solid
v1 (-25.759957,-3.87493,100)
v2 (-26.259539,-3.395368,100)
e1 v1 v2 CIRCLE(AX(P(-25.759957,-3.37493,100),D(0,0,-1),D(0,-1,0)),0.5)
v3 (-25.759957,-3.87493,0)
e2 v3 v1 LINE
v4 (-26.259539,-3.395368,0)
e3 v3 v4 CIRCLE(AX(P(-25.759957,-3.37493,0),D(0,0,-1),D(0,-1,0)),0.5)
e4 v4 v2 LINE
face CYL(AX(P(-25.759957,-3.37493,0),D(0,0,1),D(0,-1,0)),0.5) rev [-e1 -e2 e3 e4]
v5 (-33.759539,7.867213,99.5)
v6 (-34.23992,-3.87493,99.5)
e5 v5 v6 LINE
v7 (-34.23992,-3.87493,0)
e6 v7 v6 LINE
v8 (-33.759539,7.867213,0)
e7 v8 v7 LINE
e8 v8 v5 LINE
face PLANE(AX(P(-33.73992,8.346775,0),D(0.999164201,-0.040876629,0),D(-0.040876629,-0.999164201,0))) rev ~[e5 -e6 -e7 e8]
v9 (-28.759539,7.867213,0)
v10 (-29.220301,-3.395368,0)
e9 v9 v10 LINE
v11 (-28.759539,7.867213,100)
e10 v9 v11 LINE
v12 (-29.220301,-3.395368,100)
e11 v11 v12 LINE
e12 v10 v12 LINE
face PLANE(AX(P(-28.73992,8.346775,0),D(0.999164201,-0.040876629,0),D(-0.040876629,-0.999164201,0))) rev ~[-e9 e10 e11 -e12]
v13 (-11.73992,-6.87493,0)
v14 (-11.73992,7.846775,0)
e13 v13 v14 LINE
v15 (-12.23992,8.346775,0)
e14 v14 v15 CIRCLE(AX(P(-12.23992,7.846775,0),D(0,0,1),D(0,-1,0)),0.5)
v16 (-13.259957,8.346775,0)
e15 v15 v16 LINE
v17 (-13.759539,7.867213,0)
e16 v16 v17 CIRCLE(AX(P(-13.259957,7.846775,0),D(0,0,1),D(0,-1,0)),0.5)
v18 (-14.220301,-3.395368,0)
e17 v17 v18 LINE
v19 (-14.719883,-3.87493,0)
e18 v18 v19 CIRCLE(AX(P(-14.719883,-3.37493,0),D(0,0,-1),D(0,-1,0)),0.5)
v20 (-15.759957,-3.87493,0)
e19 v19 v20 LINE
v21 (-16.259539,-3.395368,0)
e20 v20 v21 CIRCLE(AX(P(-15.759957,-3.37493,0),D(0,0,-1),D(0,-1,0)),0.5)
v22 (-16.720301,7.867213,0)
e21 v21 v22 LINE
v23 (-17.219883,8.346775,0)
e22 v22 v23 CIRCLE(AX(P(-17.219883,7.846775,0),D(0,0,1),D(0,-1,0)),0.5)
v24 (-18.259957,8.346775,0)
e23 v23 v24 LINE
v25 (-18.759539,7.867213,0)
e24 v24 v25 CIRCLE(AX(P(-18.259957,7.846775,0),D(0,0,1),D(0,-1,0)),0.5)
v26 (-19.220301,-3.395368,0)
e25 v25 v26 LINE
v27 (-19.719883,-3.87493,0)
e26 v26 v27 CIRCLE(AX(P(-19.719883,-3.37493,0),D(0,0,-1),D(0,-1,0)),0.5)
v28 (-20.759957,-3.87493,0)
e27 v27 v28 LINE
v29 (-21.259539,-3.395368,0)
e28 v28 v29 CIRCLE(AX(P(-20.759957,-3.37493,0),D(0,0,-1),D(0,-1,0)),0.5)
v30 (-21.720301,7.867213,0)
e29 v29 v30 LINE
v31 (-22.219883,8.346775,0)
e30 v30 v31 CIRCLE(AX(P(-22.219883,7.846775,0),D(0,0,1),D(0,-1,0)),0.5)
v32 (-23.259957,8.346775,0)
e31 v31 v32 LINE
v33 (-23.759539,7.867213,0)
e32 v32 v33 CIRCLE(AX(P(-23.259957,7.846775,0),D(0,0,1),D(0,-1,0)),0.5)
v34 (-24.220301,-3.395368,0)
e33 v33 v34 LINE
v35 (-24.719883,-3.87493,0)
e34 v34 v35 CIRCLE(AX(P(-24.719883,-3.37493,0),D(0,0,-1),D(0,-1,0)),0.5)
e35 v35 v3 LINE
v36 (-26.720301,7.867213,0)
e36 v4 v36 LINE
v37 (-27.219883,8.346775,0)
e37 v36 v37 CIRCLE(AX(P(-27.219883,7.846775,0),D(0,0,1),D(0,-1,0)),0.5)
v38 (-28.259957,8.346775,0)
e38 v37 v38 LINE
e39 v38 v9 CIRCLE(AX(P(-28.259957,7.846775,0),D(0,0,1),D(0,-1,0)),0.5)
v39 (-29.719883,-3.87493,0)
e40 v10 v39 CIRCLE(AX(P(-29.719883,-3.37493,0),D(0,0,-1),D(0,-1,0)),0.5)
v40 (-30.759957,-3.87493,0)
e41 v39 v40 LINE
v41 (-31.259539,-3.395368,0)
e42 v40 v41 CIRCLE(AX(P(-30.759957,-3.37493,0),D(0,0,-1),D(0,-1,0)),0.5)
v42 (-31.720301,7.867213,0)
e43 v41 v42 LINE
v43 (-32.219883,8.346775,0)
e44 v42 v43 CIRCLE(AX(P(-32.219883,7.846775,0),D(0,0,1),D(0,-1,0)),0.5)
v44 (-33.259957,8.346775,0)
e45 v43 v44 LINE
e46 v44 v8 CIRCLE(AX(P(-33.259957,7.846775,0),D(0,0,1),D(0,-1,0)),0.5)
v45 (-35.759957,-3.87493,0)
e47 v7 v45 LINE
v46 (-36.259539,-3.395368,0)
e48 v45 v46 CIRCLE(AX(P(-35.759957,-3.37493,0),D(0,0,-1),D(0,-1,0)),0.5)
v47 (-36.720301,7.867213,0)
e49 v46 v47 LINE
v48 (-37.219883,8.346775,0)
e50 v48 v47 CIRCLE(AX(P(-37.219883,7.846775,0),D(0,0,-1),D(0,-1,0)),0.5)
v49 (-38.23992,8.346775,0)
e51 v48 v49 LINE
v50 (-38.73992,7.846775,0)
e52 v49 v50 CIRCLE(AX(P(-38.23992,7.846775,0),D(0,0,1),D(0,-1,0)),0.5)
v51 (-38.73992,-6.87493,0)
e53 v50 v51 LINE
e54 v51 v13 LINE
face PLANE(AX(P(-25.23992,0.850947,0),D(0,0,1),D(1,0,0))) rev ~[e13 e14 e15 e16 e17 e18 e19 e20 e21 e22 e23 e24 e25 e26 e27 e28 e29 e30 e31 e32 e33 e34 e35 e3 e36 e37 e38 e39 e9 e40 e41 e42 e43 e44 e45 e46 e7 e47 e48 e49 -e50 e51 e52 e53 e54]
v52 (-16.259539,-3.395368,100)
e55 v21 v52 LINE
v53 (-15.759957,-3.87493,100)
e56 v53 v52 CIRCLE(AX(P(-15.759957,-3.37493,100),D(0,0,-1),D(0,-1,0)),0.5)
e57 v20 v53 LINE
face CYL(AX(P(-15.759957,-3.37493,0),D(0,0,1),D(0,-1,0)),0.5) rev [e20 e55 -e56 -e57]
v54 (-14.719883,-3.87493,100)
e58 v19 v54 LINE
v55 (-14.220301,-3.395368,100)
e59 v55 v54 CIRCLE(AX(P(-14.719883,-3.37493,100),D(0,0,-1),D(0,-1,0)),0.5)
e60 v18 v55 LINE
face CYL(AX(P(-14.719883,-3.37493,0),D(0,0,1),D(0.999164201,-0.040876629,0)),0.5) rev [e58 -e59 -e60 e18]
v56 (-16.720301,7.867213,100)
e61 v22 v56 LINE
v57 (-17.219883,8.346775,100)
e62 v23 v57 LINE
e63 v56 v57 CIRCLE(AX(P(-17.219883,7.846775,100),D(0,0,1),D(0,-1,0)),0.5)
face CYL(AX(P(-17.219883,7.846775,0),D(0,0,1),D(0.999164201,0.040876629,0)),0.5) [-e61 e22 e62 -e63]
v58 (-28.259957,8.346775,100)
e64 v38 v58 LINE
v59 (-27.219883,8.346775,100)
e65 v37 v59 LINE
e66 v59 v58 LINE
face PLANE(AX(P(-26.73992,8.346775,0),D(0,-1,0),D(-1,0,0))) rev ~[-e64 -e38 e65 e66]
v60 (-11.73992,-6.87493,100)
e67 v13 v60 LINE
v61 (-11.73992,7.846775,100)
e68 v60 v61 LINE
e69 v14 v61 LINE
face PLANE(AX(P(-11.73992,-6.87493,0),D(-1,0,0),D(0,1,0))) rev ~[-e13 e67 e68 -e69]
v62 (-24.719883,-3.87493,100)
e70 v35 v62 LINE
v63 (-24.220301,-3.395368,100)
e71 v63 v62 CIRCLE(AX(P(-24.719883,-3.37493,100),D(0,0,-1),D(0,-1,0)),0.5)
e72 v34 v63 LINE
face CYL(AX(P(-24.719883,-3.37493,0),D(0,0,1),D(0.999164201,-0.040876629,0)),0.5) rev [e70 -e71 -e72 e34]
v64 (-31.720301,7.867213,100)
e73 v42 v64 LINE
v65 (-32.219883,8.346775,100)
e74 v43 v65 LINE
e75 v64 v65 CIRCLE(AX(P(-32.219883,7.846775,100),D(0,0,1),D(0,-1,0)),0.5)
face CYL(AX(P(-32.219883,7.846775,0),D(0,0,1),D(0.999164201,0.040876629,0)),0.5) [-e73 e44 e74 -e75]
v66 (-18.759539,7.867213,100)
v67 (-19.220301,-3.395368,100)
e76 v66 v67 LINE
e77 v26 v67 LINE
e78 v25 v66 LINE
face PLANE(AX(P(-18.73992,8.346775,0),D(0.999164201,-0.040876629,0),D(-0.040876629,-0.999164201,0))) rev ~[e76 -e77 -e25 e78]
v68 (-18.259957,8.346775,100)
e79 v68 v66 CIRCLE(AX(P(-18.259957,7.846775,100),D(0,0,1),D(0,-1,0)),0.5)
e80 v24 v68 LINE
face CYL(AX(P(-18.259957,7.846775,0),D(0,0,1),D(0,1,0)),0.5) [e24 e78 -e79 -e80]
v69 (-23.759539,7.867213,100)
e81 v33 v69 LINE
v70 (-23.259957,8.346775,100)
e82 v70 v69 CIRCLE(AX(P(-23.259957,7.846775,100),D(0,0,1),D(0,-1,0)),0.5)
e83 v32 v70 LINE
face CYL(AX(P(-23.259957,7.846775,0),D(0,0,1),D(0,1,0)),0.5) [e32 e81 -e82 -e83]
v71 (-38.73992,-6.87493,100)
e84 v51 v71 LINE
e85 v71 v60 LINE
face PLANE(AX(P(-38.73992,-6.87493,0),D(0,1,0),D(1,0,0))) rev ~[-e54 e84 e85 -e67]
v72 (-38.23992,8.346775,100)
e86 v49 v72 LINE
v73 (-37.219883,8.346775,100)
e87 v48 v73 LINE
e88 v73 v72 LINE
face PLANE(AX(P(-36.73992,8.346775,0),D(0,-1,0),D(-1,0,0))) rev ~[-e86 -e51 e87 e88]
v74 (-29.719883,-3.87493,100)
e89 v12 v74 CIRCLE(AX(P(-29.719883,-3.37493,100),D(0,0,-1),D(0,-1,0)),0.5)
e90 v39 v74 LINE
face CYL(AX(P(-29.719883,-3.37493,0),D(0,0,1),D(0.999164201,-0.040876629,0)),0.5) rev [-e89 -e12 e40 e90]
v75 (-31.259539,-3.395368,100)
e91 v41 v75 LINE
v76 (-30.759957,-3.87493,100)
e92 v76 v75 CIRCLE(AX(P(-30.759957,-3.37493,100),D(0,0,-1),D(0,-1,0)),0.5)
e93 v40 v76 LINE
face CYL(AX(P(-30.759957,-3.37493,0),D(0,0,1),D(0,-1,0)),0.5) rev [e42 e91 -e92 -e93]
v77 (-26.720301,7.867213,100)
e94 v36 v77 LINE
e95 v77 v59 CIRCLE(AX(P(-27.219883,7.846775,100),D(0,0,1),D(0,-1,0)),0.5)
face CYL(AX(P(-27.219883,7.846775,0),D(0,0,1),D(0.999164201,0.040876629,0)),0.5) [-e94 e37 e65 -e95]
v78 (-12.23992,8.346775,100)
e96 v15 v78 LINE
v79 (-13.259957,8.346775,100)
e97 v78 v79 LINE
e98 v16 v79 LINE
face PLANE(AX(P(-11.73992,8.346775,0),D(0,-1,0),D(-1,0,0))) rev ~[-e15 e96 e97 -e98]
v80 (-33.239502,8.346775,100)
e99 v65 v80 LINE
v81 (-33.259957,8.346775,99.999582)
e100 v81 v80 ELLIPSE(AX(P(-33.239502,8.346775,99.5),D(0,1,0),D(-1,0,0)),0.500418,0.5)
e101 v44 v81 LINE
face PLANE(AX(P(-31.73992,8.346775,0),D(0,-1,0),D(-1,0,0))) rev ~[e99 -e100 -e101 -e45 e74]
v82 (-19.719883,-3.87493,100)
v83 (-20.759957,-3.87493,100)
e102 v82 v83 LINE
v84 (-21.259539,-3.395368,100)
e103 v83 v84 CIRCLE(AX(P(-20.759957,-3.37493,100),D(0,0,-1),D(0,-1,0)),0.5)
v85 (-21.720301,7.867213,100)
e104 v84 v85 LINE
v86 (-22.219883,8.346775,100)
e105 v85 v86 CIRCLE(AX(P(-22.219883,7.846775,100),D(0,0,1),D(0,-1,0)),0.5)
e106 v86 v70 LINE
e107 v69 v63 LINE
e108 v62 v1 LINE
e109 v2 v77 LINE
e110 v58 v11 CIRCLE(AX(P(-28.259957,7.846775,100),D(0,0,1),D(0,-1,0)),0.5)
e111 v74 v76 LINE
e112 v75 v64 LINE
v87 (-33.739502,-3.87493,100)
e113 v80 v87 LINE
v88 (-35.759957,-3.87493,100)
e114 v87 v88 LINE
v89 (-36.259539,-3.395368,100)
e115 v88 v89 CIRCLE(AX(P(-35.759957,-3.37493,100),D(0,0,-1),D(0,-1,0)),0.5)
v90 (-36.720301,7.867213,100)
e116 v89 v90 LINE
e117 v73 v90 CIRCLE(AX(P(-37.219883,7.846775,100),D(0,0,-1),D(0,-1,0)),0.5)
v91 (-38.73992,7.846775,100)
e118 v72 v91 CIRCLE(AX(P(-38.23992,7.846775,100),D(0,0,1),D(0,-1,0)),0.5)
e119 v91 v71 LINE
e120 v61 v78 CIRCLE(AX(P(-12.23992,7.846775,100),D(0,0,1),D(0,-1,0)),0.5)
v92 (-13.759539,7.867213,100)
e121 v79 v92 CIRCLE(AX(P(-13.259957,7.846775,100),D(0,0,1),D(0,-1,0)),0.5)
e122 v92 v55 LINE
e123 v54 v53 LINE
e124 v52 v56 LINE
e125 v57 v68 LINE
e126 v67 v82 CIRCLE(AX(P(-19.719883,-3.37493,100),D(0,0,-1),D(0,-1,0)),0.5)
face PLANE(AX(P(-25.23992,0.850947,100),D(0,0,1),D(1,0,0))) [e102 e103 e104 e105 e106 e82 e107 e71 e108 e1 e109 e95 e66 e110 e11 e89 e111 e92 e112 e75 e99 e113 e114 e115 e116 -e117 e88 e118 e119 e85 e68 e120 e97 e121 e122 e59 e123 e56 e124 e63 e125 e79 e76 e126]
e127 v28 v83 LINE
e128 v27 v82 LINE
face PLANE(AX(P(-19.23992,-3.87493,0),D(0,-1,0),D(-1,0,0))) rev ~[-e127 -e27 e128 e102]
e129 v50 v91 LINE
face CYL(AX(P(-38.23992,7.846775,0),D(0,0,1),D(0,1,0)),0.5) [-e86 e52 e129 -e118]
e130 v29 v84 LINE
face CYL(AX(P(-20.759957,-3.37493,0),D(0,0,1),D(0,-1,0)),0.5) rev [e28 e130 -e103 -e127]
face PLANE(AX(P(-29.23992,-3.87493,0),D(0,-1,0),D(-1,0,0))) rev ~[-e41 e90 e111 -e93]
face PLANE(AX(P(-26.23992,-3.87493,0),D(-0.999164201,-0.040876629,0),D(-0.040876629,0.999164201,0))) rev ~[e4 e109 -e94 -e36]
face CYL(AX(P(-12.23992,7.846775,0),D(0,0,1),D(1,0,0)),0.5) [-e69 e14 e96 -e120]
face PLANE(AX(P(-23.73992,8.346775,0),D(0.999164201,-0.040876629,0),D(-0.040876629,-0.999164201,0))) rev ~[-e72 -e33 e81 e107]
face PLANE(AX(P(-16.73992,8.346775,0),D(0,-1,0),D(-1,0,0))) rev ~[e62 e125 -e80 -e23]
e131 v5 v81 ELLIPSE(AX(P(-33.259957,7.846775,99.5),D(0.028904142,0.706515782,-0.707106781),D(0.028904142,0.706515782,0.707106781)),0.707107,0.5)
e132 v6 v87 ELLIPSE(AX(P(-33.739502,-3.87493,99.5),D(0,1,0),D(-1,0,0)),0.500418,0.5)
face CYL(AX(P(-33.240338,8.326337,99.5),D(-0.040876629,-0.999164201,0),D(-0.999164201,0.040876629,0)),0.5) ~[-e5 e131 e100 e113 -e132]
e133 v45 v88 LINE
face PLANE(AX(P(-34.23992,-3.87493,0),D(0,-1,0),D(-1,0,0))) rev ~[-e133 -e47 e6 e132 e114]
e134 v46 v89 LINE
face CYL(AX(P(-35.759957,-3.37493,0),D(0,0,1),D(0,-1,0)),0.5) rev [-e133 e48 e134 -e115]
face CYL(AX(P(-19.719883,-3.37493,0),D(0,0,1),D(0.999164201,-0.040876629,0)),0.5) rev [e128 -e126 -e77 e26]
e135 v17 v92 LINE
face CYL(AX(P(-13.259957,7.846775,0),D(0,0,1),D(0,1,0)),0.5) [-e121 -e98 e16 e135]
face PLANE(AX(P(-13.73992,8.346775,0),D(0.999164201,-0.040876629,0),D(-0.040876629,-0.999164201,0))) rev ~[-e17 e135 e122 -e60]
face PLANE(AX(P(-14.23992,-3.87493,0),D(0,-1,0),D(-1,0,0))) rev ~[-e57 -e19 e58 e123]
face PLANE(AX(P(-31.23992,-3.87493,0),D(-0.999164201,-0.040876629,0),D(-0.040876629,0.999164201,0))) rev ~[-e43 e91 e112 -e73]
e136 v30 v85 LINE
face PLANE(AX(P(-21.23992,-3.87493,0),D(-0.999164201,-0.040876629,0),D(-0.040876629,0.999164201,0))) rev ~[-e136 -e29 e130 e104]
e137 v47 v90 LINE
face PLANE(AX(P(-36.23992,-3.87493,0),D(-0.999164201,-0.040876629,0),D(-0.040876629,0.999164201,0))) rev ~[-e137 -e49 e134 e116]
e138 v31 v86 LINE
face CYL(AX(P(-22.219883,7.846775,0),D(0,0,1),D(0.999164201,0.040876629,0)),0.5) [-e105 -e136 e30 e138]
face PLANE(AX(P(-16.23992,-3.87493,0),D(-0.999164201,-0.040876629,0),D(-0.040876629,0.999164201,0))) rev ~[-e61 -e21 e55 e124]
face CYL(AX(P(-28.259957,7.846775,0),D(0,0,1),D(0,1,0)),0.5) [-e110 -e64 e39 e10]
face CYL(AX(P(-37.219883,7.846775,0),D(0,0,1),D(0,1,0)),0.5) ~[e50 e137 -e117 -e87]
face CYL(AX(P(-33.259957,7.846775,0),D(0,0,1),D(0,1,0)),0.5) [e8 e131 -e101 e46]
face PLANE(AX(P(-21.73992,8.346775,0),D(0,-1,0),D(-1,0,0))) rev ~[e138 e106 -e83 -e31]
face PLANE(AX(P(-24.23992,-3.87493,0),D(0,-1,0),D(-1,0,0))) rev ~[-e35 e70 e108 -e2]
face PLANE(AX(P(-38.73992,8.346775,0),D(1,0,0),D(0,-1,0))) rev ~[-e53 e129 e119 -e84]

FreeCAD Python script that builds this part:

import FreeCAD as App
import Part
import Sketcher
Q = App.Units.Quantity


def edges_at(feature, points):
    """Names of the edges that pass closest to the given points."""
    edges = feature.Shape.Edges
    near = lambda p: min(range(len(edges)), key=lambda i: edges[i].distToShape(Part.Vertex(*p))[0])
    return sorted({f"Edge{near(p) + 1}" for p in points})

doc = App.newDocument("Part")
body = doc.addObject("PartDesign::Body", "Body")

# Sketch on XY plane
sketch1 = body.newObject("Sketcher::SketchObject", "Sketch")
sketch1.AttachmentSupport = (doc.getObject("XY_Plane"), [""])
sketch1.MapMode = "FlatFace"
sketch1.addGeometry([
    Part.LineSegment(App.Vector(-36.73992, 8.346775, 0), App.Vector(-38.73992, 8.346775, 0)),  # 0
    Part.LineSegment(App.Vector(-38.73992, 8.346775, 0), App.Vector(-38.73992, -6.87493, 0)),  # 1
    Part.LineSegment(App.Vector(-38.73992, -6.87493, 0), App.Vector(-11.73992, -6.87493, 0)),  # 2
    Part.LineSegment(App.Vector(-11.73992, -6.87493, 0), App.Vector(-11.73992, 8.346775, 0)),  # 3
    Part.LineSegment(App.Vector(-11.73992, 8.346775, 0), App.Vector(-13.73992, 8.346775, 0)),  # 4
    Part.LineSegment(App.Vector(-13.73992, 8.346775, 0), App.Vector(-14.23992, -3.87493, 0)),  # 5
    Part.LineSegment(App.Vector(-14.23992, -3.87493, 0), App.Vector(-16.23992, -3.87493, 0)),  # 6
    Part.LineSegment(App.Vector(-16.23992, -3.87493, 0), App.Vector(-16.73992, 8.346775, 0)),  # 7
    Part.LineSegment(App.Vector(-16.73992, 8.346775, 0), App.Vector(-18.73992, 8.346775, 0)),  # 8
    Part.LineSegment(App.Vector(-18.73992, 8.346775, 0), App.Vector(-19.23992, -3.87493, 0)),  # 9
    Part.LineSegment(App.Vector(-19.23992, -3.87493, 0), App.Vector(-21.23992, -3.87493, 0)),  # 10
    Part.LineSegment(App.Vector(-21.23992, -3.87493, 0), App.Vector(-21.73992, 8.346775, 0)),  # 11
    Part.LineSegment(App.Vector(-21.73992, 8.346775, 0), App.Vector(-23.73992, 8.346775, 0)),  # 12
    Part.LineSegment(App.Vector(-23.73992, 8.346775, 0), App.Vector(-24.23992, -3.87493, 0)),  # 13
    Part.LineSegment(App.Vector(-24.23992, -3.87493, 0), App.Vector(-26.23992, -3.87493, 0)),  # 14
    Part.LineSegment(App.Vector(-26.23992, -3.87493, 0), App.Vector(-26.73992, 8.346775, 0)),  # 15
    Part.LineSegment(App.Vector(-26.73992, 8.346775, 0), App.Vector(-28.73992, 8.346775, 0)),  # 16
    Part.LineSegment(App.Vector(-28.73992, 8.346775, 0), App.Vector(-29.23992, -3.87493, 0)),  # 17
    Part.LineSegment(App.Vector(-29.23992, -3.87493, 0), App.Vector(-31.23992, -3.87493, 0)),  # 18
    Part.LineSegment(App.Vector(-31.23992, -3.87493, 0), App.Vector(-31.73992, 8.346775, 0)),  # 19
    Part.LineSegment(App.Vector(-31.73992, 8.346775, 0), App.Vector(-33.73992, 8.346775, 0)),  # 20
    Part.LineSegment(App.Vector(-33.73992, 8.346775, 0), App.Vector(-34.23992, -3.87493, 0)),  # 21
    Part.LineSegment(App.Vector(-34.23992, -3.87493, 0), App.Vector(-36.23992, -3.87493, 0)),  # 22
    Part.LineSegment(App.Vector(-36.23992, -3.87493, 0), App.Vector(-36.73992, 8.346775, 0)),  # 23
], False)
sketch1.addConstraint([
    Sketcher.Constraint("Coincident", 0, 2, 1, 1),
    Sketcher.Constraint("Coincident", 1, 2, 2, 1),
    Sketcher.Constraint("Coincident", 2, 2, 3, 1),
    Sketcher.Constraint("Coincident", 3, 2, 4, 1),
    Sketcher.Constraint("Coincident", 4, 2, 5, 1),
    Sketcher.Constraint("Coincident", 5, 2, 6, 1),
    Sketcher.Constraint("Coincident", 6, 2, 7, 1),
    Sketcher.Constraint("Coincident", 7, 2, 8, 1),
    Sketcher.Constraint("Coincident", 8, 2, 9, 1),
    Sketcher.Constraint("Coincident", 9, 2, 10, 1),
    Sketcher.Constraint("Coincident", 10, 2, 11, 1),
    Sketcher.Constraint("Coincident", 11, 2, 12, 1),
    Sketcher.Constraint("Coincident", 12, 2, 13, 1),
    Sketcher.Constraint("Coincident", 13, 2, 14, 1),
    Sketcher.Constraint("Coincident", 14, 2, 15, 1),
    Sketcher.Constraint("Coincident", 15, 2, 16, 1),
    Sketcher.Constraint("Coincident", 16, 2, 17, 1),
    Sketcher.Constraint("Coincident", 17, 2, 18, 1),
    Sketcher.Constraint("Coincident", 18, 2, 19, 1),
    Sketcher.Constraint("Coincident", 19, 2, 20, 1),
    Sketcher.Constraint("Coincident", 20, 2, 21, 1),
    Sketcher.Constraint("Coincident", 21, 2, 22, 1),
    Sketcher.Constraint("Coincident", 22, 2, 23, 1),
    Sketcher.Constraint("Coincident", 23, 2, 0, 1),
    Sketcher.Constraint("Horizontal", 0),
    Sketcher.Constraint("Vertical", 1),
    Sketcher.Constraint("Horizontal", 2),
    Sketcher.Constraint("Vertical", 3),
    Sketcher.Constraint("Horizontal", 4),
    Sketcher.Constraint("Horizontal", 6),
    Sketcher.Constraint("Horizontal", 8),
    Sketcher.Constraint("Horizontal", 10),
    Sketcher.Constraint("Horizontal", 12),
    Sketcher.Constraint("Horizontal", 14),
    Sketcher.Constraint("Horizontal", 16),
    Sketcher.Constraint("Horizontal", 18),
    Sketcher.Constraint("Horizontal", 20),
    Sketcher.Constraint("Horizontal", 22),
    Sketcher.Constraint("Parallel", 5, 9),
    Sketcher.Constraint("Parallel", 7, 11),
    Sketcher.Constraint("Parallel", 9, 13),
    Sketcher.Constraint("Parallel", 11, 15),
    Sketcher.Constraint("Parallel", 13, 17),
    Sketcher.Constraint("Parallel", 15, 19),
    Sketcher.Constraint("Parallel", 17, 21),
    Sketcher.Constraint("Parallel", 19, 23),
    Sketcher.Constraint("Horizontal", 0, 2, 3, 2),
    Sketcher.Constraint("Horizontal", 4, 2, 7, 2),
    Sketcher.Constraint("Horizontal", 6, 2, 9, 2),
    Sketcher.Constraint("Horizontal", 8, 2, 11, 2),
    Sketcher.Constraint("Horizontal", 10, 2, 13, 2),
    Sketcher.Constraint("Horizontal", 12, 2, 15, 2),
    Sketcher.Constraint("Horizontal", 14, 2, 17, 2),
    Sketcher.Constraint("Horizontal", 16, 2, 19, 2),
    Sketcher.Constraint("Horizontal", 18, 2, 21, 2),
    Sketcher.Constraint("Equal", 0, 4),
    Sketcher.Constraint("Equal", 4, 6),
    Sketcher.Constraint("Equal", 6, 8),
    Sketcher.Constraint("Equal", 8, 10),
    Sketcher.Constraint("Equal", 10, 12),
    Sketcher.Constraint("Equal", 12, 14),
    Sketcher.Constraint("Equal", 14, 16),
    Sketcher.Constraint("Equal", 16, 18),
    Sketcher.Constraint("Equal", 18, 20),
    Sketcher.Constraint("Equal", 20, 22),
    Sketcher.Constraint("Equal", 5, 7),
    Sketcher.Constraint("DistanceX", 0, 2, 0, 1, Q("2 mm")),
    Sketcher.Constraint("DistanceX", 2, 1, 2, 2, Q("27 mm")),
    Sketcher.Constraint("DistanceY", 2, 2, 5, 2, Q("3 mm")),
    Sketcher.Constraint("Distance", 5, Q("12.231928 mm")),
    Sketcher.Constraint("DistanceX", 0, 2, -1, 1, Q("38.73992 mm")),
    Sketcher.Constraint("DistanceY", 1, 2, -1, 1, Q("6.87493 mm")),
])
pad1 = body.newObject("PartDesign::Pad", "Pad")
pad1.Profile = sketch1
pad1.Length = 100
doc.recompute()

fillet = body.newObject("PartDesign::Fillet", "Fillet")
fillet.Base = (pad1, edges_at(pad1, [
    (-13.74, 8.347, 50),
    (-11.74, 8.347, 50),
    (-18.74, 8.347, 50),
    (-16.74, 8.347, 50),
    (-23.74, 8.347, 50),
    (-21.74, 8.347, 50),
    (-28.74, 8.347, 50),
    (-26.74, 8.347, 50),
    (-33.74, 8.347, 50),
    (-31.74, 8.347, 50),
    (-38.74, 8.347, 50),
    (-36.74, 8.347, 50),
    (-36.24, -3.875, 50),
    (-33.99, 2.236, 100),
    (-31.24, -3.875, 50),
    (-26.24, -3.875, 50),
    (-24.24, -3.875, 50),
    (-29.24, -3.875, 50),
    (-21.24, -3.875, 50),
    (-19.24, -3.875, 50),
    (-16.24, -3.875, 50),
    (-14.24, -3.875, 50),
]))
fillet.Radius = 0.5

doc.recompute()
